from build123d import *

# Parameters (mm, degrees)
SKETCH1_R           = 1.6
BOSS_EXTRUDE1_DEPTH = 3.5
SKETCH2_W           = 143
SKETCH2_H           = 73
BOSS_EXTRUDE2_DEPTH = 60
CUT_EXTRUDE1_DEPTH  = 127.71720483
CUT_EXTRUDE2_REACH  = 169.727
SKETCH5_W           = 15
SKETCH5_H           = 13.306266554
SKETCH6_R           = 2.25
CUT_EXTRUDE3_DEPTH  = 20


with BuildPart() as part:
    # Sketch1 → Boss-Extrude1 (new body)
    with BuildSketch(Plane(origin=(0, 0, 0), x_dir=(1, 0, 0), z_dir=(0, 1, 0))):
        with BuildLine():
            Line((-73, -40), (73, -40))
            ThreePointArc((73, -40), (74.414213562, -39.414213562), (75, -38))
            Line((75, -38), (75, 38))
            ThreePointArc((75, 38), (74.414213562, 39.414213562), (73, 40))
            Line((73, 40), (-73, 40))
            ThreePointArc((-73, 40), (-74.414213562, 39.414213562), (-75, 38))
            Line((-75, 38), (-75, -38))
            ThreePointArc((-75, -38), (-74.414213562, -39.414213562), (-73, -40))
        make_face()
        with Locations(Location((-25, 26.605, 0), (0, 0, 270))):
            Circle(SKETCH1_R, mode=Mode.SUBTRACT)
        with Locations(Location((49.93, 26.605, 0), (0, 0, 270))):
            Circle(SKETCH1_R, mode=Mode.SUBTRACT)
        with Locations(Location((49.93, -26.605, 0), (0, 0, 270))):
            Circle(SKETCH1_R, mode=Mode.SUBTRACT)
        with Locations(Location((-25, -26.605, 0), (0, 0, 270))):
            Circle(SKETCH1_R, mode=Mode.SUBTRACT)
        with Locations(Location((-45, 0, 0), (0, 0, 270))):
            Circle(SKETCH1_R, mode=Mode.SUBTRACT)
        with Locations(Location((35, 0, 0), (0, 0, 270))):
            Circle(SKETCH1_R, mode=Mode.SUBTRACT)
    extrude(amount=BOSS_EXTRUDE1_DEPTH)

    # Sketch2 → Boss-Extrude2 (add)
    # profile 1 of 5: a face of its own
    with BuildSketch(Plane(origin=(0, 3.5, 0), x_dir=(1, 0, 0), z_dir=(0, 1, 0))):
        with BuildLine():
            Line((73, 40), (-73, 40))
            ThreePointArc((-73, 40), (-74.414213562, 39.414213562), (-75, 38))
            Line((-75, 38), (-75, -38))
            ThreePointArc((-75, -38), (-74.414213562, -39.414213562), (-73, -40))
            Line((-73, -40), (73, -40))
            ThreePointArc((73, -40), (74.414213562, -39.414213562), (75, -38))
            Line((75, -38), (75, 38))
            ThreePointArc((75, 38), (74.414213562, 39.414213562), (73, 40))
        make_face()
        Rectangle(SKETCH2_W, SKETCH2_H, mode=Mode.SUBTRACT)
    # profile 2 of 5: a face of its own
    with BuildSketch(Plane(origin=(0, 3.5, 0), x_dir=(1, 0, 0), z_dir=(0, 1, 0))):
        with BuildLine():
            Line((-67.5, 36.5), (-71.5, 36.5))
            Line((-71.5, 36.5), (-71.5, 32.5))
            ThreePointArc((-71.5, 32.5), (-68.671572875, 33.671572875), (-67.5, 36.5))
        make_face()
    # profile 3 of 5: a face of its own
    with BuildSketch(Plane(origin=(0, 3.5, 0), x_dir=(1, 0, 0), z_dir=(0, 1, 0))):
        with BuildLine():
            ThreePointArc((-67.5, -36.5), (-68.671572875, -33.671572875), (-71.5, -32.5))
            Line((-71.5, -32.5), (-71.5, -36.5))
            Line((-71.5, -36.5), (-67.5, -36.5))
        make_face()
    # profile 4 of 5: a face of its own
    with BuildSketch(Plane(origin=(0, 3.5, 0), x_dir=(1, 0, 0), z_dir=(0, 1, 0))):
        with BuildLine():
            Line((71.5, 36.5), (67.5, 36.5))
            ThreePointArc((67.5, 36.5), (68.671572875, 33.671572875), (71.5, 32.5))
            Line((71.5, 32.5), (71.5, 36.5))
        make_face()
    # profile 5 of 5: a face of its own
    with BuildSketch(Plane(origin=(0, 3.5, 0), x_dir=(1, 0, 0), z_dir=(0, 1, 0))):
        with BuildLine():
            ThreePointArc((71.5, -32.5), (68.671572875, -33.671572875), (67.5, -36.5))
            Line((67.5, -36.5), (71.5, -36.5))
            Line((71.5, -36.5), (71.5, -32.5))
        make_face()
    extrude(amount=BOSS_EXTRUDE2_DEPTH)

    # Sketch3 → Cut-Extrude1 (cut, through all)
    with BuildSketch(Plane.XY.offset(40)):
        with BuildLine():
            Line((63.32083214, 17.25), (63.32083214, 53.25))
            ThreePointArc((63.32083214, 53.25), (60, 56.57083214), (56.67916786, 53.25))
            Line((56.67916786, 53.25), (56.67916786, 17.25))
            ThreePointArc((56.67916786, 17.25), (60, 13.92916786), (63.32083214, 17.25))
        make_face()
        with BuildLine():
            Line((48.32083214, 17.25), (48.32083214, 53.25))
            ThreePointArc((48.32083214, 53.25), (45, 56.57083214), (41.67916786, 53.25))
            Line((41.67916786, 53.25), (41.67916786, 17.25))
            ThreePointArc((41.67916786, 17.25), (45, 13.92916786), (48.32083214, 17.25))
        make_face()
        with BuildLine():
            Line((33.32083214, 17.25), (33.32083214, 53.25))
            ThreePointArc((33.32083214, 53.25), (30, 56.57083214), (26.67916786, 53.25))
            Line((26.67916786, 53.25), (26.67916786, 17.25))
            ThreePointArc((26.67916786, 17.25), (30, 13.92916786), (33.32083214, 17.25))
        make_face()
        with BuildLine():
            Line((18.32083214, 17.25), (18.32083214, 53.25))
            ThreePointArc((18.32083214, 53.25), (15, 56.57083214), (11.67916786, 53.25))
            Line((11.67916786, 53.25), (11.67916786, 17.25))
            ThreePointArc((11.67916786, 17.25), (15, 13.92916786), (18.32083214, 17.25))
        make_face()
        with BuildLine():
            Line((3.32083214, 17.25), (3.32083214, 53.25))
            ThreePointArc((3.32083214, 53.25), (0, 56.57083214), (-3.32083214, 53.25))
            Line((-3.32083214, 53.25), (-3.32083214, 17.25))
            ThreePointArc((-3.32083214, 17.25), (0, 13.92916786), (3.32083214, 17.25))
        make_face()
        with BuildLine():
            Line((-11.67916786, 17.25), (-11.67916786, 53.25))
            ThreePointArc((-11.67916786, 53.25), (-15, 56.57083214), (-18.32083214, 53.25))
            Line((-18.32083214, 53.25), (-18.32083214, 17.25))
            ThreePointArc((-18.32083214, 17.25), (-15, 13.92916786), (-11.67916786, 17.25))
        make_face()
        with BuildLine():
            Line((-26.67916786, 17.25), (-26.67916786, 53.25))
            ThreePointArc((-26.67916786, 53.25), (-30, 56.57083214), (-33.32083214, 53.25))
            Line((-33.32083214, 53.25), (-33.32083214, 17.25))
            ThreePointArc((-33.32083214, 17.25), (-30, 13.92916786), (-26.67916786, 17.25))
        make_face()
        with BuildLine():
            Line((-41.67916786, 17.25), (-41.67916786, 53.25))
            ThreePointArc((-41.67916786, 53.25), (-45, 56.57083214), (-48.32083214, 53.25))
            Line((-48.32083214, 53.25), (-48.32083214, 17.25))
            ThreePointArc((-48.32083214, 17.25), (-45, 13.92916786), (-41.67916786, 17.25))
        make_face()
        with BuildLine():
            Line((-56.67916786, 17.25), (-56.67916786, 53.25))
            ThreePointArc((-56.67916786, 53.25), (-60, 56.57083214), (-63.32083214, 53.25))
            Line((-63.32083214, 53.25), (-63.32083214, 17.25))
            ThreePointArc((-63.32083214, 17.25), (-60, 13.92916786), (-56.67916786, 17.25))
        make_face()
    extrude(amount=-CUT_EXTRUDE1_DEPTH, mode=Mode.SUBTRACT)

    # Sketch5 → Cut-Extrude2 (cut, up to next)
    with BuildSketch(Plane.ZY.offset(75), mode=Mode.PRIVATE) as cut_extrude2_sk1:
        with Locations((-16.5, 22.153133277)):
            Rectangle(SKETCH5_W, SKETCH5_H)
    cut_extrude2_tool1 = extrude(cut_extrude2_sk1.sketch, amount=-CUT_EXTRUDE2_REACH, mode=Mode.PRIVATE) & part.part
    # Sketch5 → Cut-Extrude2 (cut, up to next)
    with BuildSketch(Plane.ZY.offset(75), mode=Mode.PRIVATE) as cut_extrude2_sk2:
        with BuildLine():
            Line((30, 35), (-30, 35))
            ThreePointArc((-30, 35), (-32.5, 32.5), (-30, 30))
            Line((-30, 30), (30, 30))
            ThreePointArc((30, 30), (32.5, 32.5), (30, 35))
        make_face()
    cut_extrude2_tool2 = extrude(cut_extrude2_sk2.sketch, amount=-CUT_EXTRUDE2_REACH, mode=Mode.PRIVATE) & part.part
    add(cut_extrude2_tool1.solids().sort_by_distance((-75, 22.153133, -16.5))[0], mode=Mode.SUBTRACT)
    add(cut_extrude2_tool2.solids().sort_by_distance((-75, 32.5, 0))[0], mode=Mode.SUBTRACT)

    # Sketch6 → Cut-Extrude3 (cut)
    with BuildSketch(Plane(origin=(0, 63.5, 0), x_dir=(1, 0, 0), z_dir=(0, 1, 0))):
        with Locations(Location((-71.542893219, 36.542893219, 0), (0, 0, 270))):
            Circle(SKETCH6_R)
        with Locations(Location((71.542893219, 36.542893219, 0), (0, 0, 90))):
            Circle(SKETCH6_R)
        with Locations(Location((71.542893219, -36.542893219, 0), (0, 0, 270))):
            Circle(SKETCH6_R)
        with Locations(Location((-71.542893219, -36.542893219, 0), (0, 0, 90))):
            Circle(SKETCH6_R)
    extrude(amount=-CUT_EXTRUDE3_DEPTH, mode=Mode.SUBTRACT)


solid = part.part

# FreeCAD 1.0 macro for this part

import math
import FreeCAD as App
import Part
import Sketcher


def add_polygon(sketch, points):
    """Adds a closed chain of lines whose ends are joined by coincident constraints."""
    first, n = sketch.GeometryCount, len(points)
    for a, b in zip(points, points[1:] + points[:1]):
        sketch.addGeometry(Part.LineSegment(App.Vector(*a, 0), App.Vector(*b, 0)), False)
    for i in range(n):
        sketch.addConstraint(Sketcher.Constraint("Coincident", first + i, 2, first + (i + 1) % n, 1))

doc = App.newDocument("Part")
body = doc.addObject("PartDesign::Body", "Body")

# Sketch on XZ plane
sketch1 = body.newObject("Sketcher::SketchObject", "Sketch")
sketch1.AttachmentSupport = (doc.getObject("XZ_Plane"), [""])
sketch1.MapMode = "FlatFace"
sketch1.addGeometry(Part.LineSegment(App.Vector(-73, 40, 0), App.Vector(73, 40, 0)), False)
sketch1.addGeometry(Part.ArcOfCircle(Part.Circle(App.Vector(73, 38, 0), App.Vector(0, 0, 1), 2), math.radians(0), math.radians(90)), False)
sketch1.addGeometry(Part.LineSegment(App.Vector(75, 38, 0), App.Vector(75, -38, 0)), False)
sketch1.addGeometry(Part.ArcOfCircle(Part.Circle(App.Vector(73, -38, 0), App.Vector(0, 0, 1), 2), math.radians(-90), math.radians(0)), False)
sketch1.addGeometry(Part.LineSegment(App.Vector(73, -40, 0), App.Vector(-73, -40, 0)), False)
sketch1.addGeometry(Part.ArcOfCircle(Part.Circle(App.Vector(-73, -38, 0), App.Vector(0, 0, 1), 2), math.radians(-180), math.radians(-90)), False)
sketch1.addGeometry(Part.LineSegment(App.Vector(-75, -38, 0), App.Vector(-75, 38, 0)), False)
sketch1.addGeometry(Part.ArcOfCircle(Part.Circle(App.Vector(-73, 38, 0), App.Vector(0, 0, 1), 2), math.radians(90), math.radians(180)), False)
sketch1.addGeometry(Part.Circle(App.Vector(-25, 26.6, 0), App.Vector(0, 0, 1), 1.6), False)
sketch1.addGeometry(Part.Circle(App.Vector(49.9, 26.6, 0), App.Vector(0, 0, 1), 1.6), False)
sketch1.addGeometry(Part.Circle(App.Vector(-45, 0, 0), App.Vector(0, 0, 1), 1.6), False)
sketch1.addGeometry(Part.Circle(App.Vector(-25, -26.6, 0), App.Vector(0, 0, 1), 1.6), False)
sketch1.addGeometry(Part.Circle(App.Vector(35, 0, 0), App.Vector(0, 0, 1), 1.6), False)
sketch1.addGeometry(Part.Circle(App.Vector(49.9, -26.6, 0), App.Vector(0, 0, 1), 1.6), False)
sketch1.addConstraint(Sketcher.Constraint("Tangent", 0, 2, 1, 2))
sketch1.addConstraint(Sketcher.Constraint("Tangent", 1, 1, 2, 1))
sketch1.addConstraint(Sketcher.Constraint("Tangent", 2, 2, 3, 2))
sketch1.addConstraint(Sketcher.Constraint("Tangent", 3, 1, 4, 1))
sketch1.addConstraint(Sketcher.Constraint("Tangent", 4, 2, 5, 2))
sketch1.addConstraint(Sketcher.Constraint("Tangent", 5, 1, 6, 1))
sketch1.addConstraint(Sketcher.Constraint("Tangent", 6, 2, 7, 2))
sketch1.addConstraint(Sketcher.Constraint("Tangent", 7, 1, 0, 1))
sketch1.addConstraint(Sketcher.Constraint("Horizontal", 0))
sketch1.addConstraint(Sketcher.Constraint("Vertical", 2))
sketch1.addConstraint(Sketcher.Constraint("Horizontal", 4))
sketch1.addConstraint(Sketcher.Constraint("Vertical", 6))
sketch1.addConstraint(Sketcher.Constraint("Equal", 1, 3))
sketch1.addConstraint(Sketcher.Constraint("Equal", 3, 5))
sketch1.addConstraint(Sketcher.Constraint("Equal", 5, 7))
sketch1.addConstraint(Sketcher.Constraint("Equal", 8, 9))
sketch1.addConstraint(Sketcher.Constraint("Equal", 9, 10))
sketch1.addConstraint(Sketcher.Constraint("Equal", 10, 11))
sketch1.addConstraint(Sketcher.Constraint("Equal", 11, 12))
sketch1.addConstraint(Sketcher.Constraint("Equal", 12, 13))
sketch1.addConstraint(Sketcher.Constraint("Symmetric", 1, 3, 5, 3, -1, 1))
sketch1.addConstraint(Sketcher.Constraint("Symmetric", 8, 3, 11, 3, -1))
sketch1.addConstraint(Sketcher.Constraint("Symmetric", 9, 3, 13, 3, -1))
sketch1.addConstraint(Sketcher.Constraint("PointOnObject", 10, 3, -1))
sketch1.addConstraint(Sketcher.Constraint("PointOnObject", 12, 3, -1))
sketch1.addConstraint(Sketcher.Constraint("Horizontal", 8, 3, 9, 3))
sketch1.addConstraint(Sketcher.Constraint("Radius", 1, 2.0))
sketch1.addConstraint(Sketcher.Constraint("Diameter", 8, 3.2))
sketch1.addConstraint(Sketcher.Constraint("DistanceX", 0, 1, 0, 2, 146.0))
sketch1.addConstraint(Sketcher.Constraint("DistanceY", 2, 2, 2, 1, 76.0))
sketch1.addConstraint(Sketcher.Constraint("DistanceX", 8, 3, -1, 1, 25.0))
sketch1.addConstraint(Sketcher.Constraint("DistanceX", 10, 3, -1, 1, 45.0))
sketch1.addConstraint(Sketcher.Constraint("DistanceX", -1, 1, 12, 3, 35.0))
sketch1.addConstraint(Sketcher.Constraint("DistanceX", -1, 1, 9, 3, 49.93))
sketch1.addConstraint(Sketcher.Constraint("DistanceY", 11, 3, 8, 3, 53.21))
pad1 = body.newObject("PartDesign::Pad", "Pad")
pad1.Profile = sketch1
pad1.Length = 3.5
pad1.Reversed = True

# Sketch on XZ plane
sketch2 = body.newObject("Sketcher::SketchObject", "Sketch001")
sketch2.AttachmentSupport = (doc.getObject("XZ_Plane"), [""])
sketch2.MapMode = "FlatFace"
sketch2.AttachmentOffset = App.Placement(App.Vector(0, 0, -3.5), App.Rotation())
sketch2.addGeometry(Part.LineSegment(App.Vector(73, -40, 0), App.Vector(-73, -40, 0)), False)
sketch2.addGeometry(Part.ArcOfCircle(Part.Circle(App.Vector(-73, -38, 0), App.Vector(0, 0, 1), 2), math.radians(-180), math.radians(-90)), False)
sketch2.addGeometry(Part.LineSegment(App.Vector(-75, -38, 0), App.Vector(-75, 38, 0)), False)
sketch2.addGeometry(Part.ArcOfCircle(Part.Circle(App.Vector(-73, 38, 0), App.Vector(0, 0, 1), 2), math.radians(90), math.radians(180)), False)
sketch2.addGeometry(Part.LineSegment(App.Vector(-73, 40, 0), App.Vector(73, 40, 0)), False)
sketch2.addGeometry(Part.ArcOfCircle(Part.Circle(App.Vector(73, 38, 0), App.Vector(0, 0, 1), 2), math.radians(0), math.radians(90)), False)
sketch2.addGeometry(Part.LineSegment(App.Vector(75, 38, 0), App.Vector(75, -38, 0)), False)
sketch2.addGeometry(Part.ArcOfCircle(Part.Circle(App.Vector(73, -38, 0), App.Vector(0, 0, 1), 2), math.radians(-90), math.radians(0)), False)
sketch2.addGeometry(Part.LineSegment(App.Vector(67.5, 36.5, 0), App.Vector(-67.5, 36.5, 0)), False)
sketch2.addGeometry(Part.ArcOfCircle(Part.Circle(App.Vector(-71.5, 36.5, 0), App.Vector(0, 0, 1), 4), math.radians(-90), math.radians(0)), False)
sketch2.addGeometry(Part.LineSegment(App.Vector(-71.5, 32.5, 0), App.Vector(-71.5, -32.5, 0)), False)
sketch2.addGeometry(Part.ArcOfCircle(Part.Circle(App.Vector(-71.5, -36.5, 0), App.Vector(0, 0, 1), 4), math.radians(0), math.radians(90)), False)
sketch2.addGeometry(Part.LineSegment(App.Vector(-67.5, -36.5, 0), App.Vector(67.5, -36.5, 0)), False)
sketch2.addGeometry(Part.ArcOfCircle(Part.Circle(App.Vector(71.5, -36.5, 0), App.Vector(0, 0, 1), 4), math.radians(90), math.radians(180)), False)
sketch2.addGeometry(Part.LineSegment(App.Vector(71.5, -32.5, 0), App.Vector(71.5, 32.5, 0)), False)
sketch2.addGeometry(Part.ArcOfCircle(Part.Circle(App.Vector(71.5, 36.5, 0), App.Vector(0, 0, 1), 4), math.radians(180), math.radians(270)), False)
sketch2.addConstraint(Sketcher.Constraint("Tangent", 0, 2, 1, 2))
sketch2.addConstraint(Sketcher.Constraint("Tangent", 1, 1, 2, 1))
sketch2.addConstraint(Sketcher.Constraint("Tangent", 2, 2, 3, 2))
sketch2.addConstraint(Sketcher.Constraint("Tangent", 3, 1, 4, 1))
sketch2.addConstraint(Sketcher.Constraint("Tangent", 4, 2, 5, 2))
sketch2.addConstraint(Sketcher.Constraint("Tangent", 5, 1, 6, 1))
sketch2.addConstraint(Sketcher.Constraint("Tangent", 6, 2, 7, 2))
sketch2.addConstraint(Sketcher.Constraint("Tangent", 7, 1, 0, 1))
sketch2.addConstraint(Sketcher.Constraint("Coincident", 8, 2, 9, 2))
sketch2.addConstraint(Sketcher.Constraint("Coincident", 9, 1, 10, 1))
sketch2.addConstraint(Sketcher.Constraint("Coincident", 10, 2, 11, 2))
sketch2.addConstraint(Sketcher.Constraint("Coincident", 11, 1, 12, 1))
sketch2.addConstraint(Sketcher.Constraint("Coincident", 12, 2, 13, 2))
sketch2.addConstraint(Sketcher.Constraint("Coincident", 13, 1, 14, 1))
sketch2.addConstraint(Sketcher.Constraint("Coincident", 14, 2, 15, 2))
sketch2.addConstraint(Sketcher.Constraint("Coincident", 15, 1, 8, 1))
sketch2.addConstraint(Sketcher.Constraint("Horizontal", 0))
sketch2.addConstraint(Sketcher.Constraint("Vertical", 2))
sketch2.addConstraint(Sketcher.Constraint("Horizontal", 4))
sketch2.addConstraint(Sketcher.Constraint("Vertical", 6))
sketch2.addConstraint(Sketcher.Constraint("Horizontal", 8))
sketch2.addConstraint(Sketcher.Constraint("Vertical", 10))
sketch2.addConstraint(Sketcher.Constraint("Horizontal", 12))
sketch2.addConstraint(Sketcher.Constraint("Vertical", 14))
sketch2.addConstraint(Sketcher.Constraint("Equal", 1, 3))
sketch2.addConstraint(Sketcher.Constraint("Equal", 3, 5))
sketch2.addConstraint(Sketcher.Constraint("Equal", 5, 7))
sketch2.addConstraint(Sketcher.Constraint("Equal", 9, 11))
sketch2.addConstraint(Sketcher.Constraint("Equal", 11, 13))
sketch2.addConstraint(Sketcher.Constraint("Equal", 13, 15))
sketch2.addConstraint(Sketcher.Constraint("Symmetric", 1, 3, 5, 3, -1, 1))
sketch2.addConstraint(Sketcher.Constraint("Symmetric", 9, 3, 13, 3, -1, 1))
sketch2.addConstraint(Sketcher.Constraint("Symmetric", 11, 3, 15, 3, -1, 1))
sketch2.addConstraint(Sketcher.Constraint("Symmetric", 11, 3, 13, 3, -2))
sketch2.addConstraint(Sketcher.Constraint("Horizontal", 15, 3, 8, 2))
sketch2.addConstraint(Sketcher.Constraint("Horizontal", 13, 3, 11, 1))
sketch2.addConstraint(Sketcher.Constraint("Vertical", 11, 3, 9, 1))
sketch2.addConstraint(Sketcher.Constraint("Vertical", 15, 3, 13, 1))
sketch2.addConstraint(Sketcher.Constraint("Radius", 1, 2.0))
sketch2.addConstraint(Sketcher.Constraint("Radius", 9, 4.0))
sketch2.addConstraint(Sketcher.Constraint("DistanceX", 0, 2, 0, 1, 146.0))
sketch2.addConstraint(Sketcher.Constraint("DistanceX", 8, 2, 8, 1, 135.0))
sketch2.addConstraint(Sketcher.Constraint("DistanceY", 2, 1, 2, 2, 76.0))
sketch2.addConstraint(Sketcher.Constraint("DistanceY", 10, 2, 10, 1, 65.0))
pad2 = body.newObject("PartDesign::Pad", "Pad001")
pad2.Profile = sketch2
pad2.Length = 60
pad2.Reversed = True

# Sketch on XY plane
sketch3 = body.newObject("Sketcher::SketchObject", "Sketch002")
sketch3.AttachmentSupport = (doc.getObject("XY_Plane"), [""])
sketch3.MapMode = "FlatFace"
sketch3.AttachmentOffset = App.Placement(App.Vector(0, 0, 40), App.Rotation())
sketch3.addGeometry(Part.LineSegment(App.Vector(63.3, 17.2, 0), App.Vector(63.3, 53.2, 0)), False)
sketch3.addGeometry(Part.ArcOfCircle(Part.Circle(App.Vector(60, 53.2, 0), App.Vector(0, 0, 1), 3.3), math.radians(0), math.radians(180)), False)
sketch3.addGeometry(Part.LineSegment(App.Vector(56.7, 53.2, 0), App.Vector(56.7, 17.2, 0)), False)
sketch3.addGeometry(Part.ArcOfCircle(Part.Circle(App.Vector(60, 17.2, 0), App.Vector(0, 0, 1), 3.3), math.radians(180), math.radians(360)), False)
sketch3.addGeometry(Part.LineSegment(App.Vector(48.3, 17.2, 0), App.Vector(48.3, 53.2, 0)), False)
sketch3.addGeometry(Part.ArcOfCircle(Part.Circle(App.Vector(45, 53.2, 0), App.Vector(0, 0, 1), 3.3), math.radians(0), math.radians(180)), False)
sketch3.addGeometry(Part.LineSegment(App.Vector(41.7, 53.2, 0), App.Vector(41.7, 17.2, 0)), False)
sketch3.addGeometry(Part.ArcOfCircle(Part.Circle(App.Vector(45, 17.2, 0), App.Vector(0, 0, 1), 3.3), math.radians(180), math.radians(360)), False)
sketch3.addGeometry(Part.LineSegment(App.Vector(33.3, 17.2, 0), App.Vector(33.3, 53.2, 0)), False)
sketch3.addGeometry(Part.ArcOfCircle(Part.Circle(App.Vector(30, 53.2, 0), App.Vector(0, 0, 1), 3.3), math.radians(0), math.radians(180)), False)
sketch3.addGeometry(Part.LineSegment(App.Vector(26.7, 53.2, 0), App.Vector(26.7, 17.2, 0)), False)
sketch3.addGeometry(Part.ArcOfCircle(Part.Circle(App.Vector(30, 17.2, 0), App.Vector(0, 0, 1), 3.3), math.radians(180), math.radians(360)), False)
sketch3.addGeometry(Part.LineSegment(App.Vector(18.3, 17.2, 0), App.Vector(18.3, 53.2, 0)), False)
sketch3.addGeometry(Part.ArcOfCircle(Part.Circle(App.Vector(15, 53.2, 0), App.Vector(0, 0, 1), 3.3), math.radians(0), math.radians(180)), False)
sketch3.addGeometry(Part.LineSegment(App.Vector(11.7, 53.2, 0), App.Vector(11.7, 17.2, 0)), False)
sketch3.addGeometry(Part.ArcOfCircle(Part.Circle(App.Vector(15, 17.2, 0), App.Vector(0, 0, 1), 3.3), math.radians(180), math.radians(360)), False)
sketch3.addGeometry(Part.LineSegment(App.Vector(3.3, 17.2, 0), App.Vector(3.3, 53.2, 0)), False)
sketch3.addGeometry(Part.ArcOfCircle(Part.Circle(App.Vector(0, 53.2, 0), App.Vector(0, 0, 1), 3.3), math.radians(0), math.radians(180)), False)
sketch3.addGeometry(Part.LineSegment(App.Vector(-3.3, 53.2, 0), App.Vector(-3.3, 17.2, 0)), False)
sketch3.addGeometry(Part.ArcOfCircle(Part.Circle(App.Vector(0, 17.2, 0), App.Vector(0, 0, 1), 3.3), math.radians(180), math.radians(360)), False)
sketch3.addGeometry(Part.LineSegment(App.Vector(-11.7, 17.2, 0), App.Vector(-11.7, 53.2, 0)), False)
sketch3.addGeometry(Part.ArcOfCircle(Part.Circle(App.Vector(-15, 53.2, 0), App.Vector(0, 0, 1), 3.3), math.radians(0), math.radians(180)), False)
sketch3.addGeometry(Part.LineSegment(App.Vector(-18.3, 53.2, 0), App.Vector(-18.3, 17.2, 0)), False)
sketch3.addGeometry(Part.ArcOfCircle(Part.Circle(App.Vector(-15, 17.2, 0), App.Vector(0, 0, 1), 3.3), math.radians(180), math.radians(360)), False)
sketch3.addGeometry(Part.LineSegment(App.Vector(-26.7, 17.2, 0), App.Vector(-26.7, 53.2, 0)), False)
sketch3.addGeometry(Part.ArcOfCircle(Part.Circle(App.Vector(-30, 53.2, 0), App.Vector(0, 0, 1), 3.3), math.radians(0), math.radians(180)), False)
sketch3.addGeometry(Part.LineSegment(App.Vector(-33.3, 53.2, 0), App.Vector(-33.3, 17.2, 0)), False)
sketch3.addGeometry(Part.ArcOfCircle(Part.Circle(App.Vector(-30, 17.2, 0), App.Vector(0, 0, 1), 3.3), math.radians(180), math.radians(360)), False)
sketch3.addGeometry(Part.LineSegment(App.Vector(-41.7, 17.2, 0), App.Vector(-41.7, 53.2, 0)), False)
sketch3.addGeometry(Part.ArcOfCircle(Part.Circle(App.Vector(-45, 53.2, 0), App.Vector(0, 0, 1), 3.3), math.radians(0), math.radians(180)), False)
sketch3.addGeometry(Part.LineSegment(App.Vector(-48.3, 53.2, 0), App.Vector(-48.3, 17.2, 0)), False)
sketch3.addGeometry(Part.ArcOfCircle(Part.Circle(App.Vector(-45, 17.2, 0), App.Vector(0, 0, 1), 3.3), math.radians(180), math.radians(360)), False)
sketch3.addGeometry(Part.LineSegment(App.Vector(-56.7, 17.2, 0), App.Vector(-56.7, 53.2, 0)), False)
sketch3.addGeometry(Part.ArcOfCircle(Part.Circle(App.Vector(-60, 53.2, 0), App.Vector(0, 0, 1), 3.3), math.radians(0), math.radians(180)), False)
sketch3.addGeometry(Part.LineSegment(App.Vector(-63.3, 53.2, 0), App.Vector(-63.3, 17.2, 0)), False)
sketch3.addGeometry(Part.ArcOfCircle(Part.Circle(App.Vector(-60, 17.2, 0), App.Vector(0, 0, 1), 3.3), math.radians(180), math.radians(360)), False)
sketch3.addConstraint(Sketcher.Constraint("Tangent", 0, 2, 1, 1))
sketch3.addConstraint(Sketcher.Constraint("Tangent", 1, 2, 2, 1))
sketch3.addConstraint(Sketcher.Constraint("Tangent", 2, 2, 3, 1))
sketch3.addConstraint(Sketcher.Constraint("Tangent", 3, 2, 0, 1))
sketch3.addConstraint(Sketcher.Constraint("Tangent", 4, 2, 5, 1))
sketch3.addConstraint(Sketcher.Constraint("Tangent", 5, 2, 6, 1))
sketch3.addConstraint(Sketcher.Constraint("Tangent", 6, 2, 7, 1))
sketch3.addConstraint(Sketcher.Constraint("Tangent", 7, 2, 4, 1))
sketch3.addConstraint(Sketcher.Constraint("Tangent", 8, 2, 9, 1))
sketch3.addConstraint(Sketcher.Constraint("Tangent", 9, 2, 10, 1))
sketch3.addConstraint(Sketcher.Constraint("Tangent", 10, 2, 11, 1))
sketch3.addConstraint(Sketcher.Constraint("Tangent", 11, 2, 8, 1))
sketch3.addConstraint(Sketcher.Constraint("Tangent", 12, 2, 13, 1))
sketch3.addConstraint(Sketcher.Constraint("Tangent", 13, 2, 14, 1))
sketch3.addConstraint(Sketcher.Constraint("Tangent", 14, 2, 15, 1))
sketch3.addConstraint(Sketcher.Constraint("Tangent", 15, 2, 12, 1))
sketch3.addConstraint(Sketcher.Constraint("Tangent", 16, 2, 17, 1))
sketch3.addConstraint(Sketcher.Constraint("Tangent", 17, 2, 18, 1))
sketch3.addConstraint(Sketcher.Constraint("Tangent", 18, 2, 19, 1))
sketch3.addConstraint(Sketcher.Constraint("Tangent", 19, 2, 16, 1))
sketch3.addConstraint(Sketcher.Constraint("Tangent", 20, 2, 21, 1))
sketch3.addConstraint(Sketcher.Constraint("Tangent", 21, 2, 22, 1))
sketch3.addConstraint(Sketcher.Constraint("Tangent", 22, 2, 23, 1))
sketch3.addConstraint(Sketcher.Constraint("Tangent", 23, 2, 20, 1))
sketch3.addConstraint(Sketcher.Constraint("Tangent", 24, 2, 25, 1))
sketch3.addConstraint(Sketcher.Constraint("Tangent", 25, 2, 26, 1))
sketch3.addConstraint(Sketcher.Constraint("Tangent", 26, 2, 27, 1))
sketch3.addConstraint(Sketcher.Constraint("Tangent", 27, 2, 24, 1))
sketch3.addConstraint(Sketcher.Constraint("Tangent", 28, 2, 29, 1))
sketch3.addConstraint(Sketcher.Constraint("Tangent", 29, 2, 30, 1))
sketch3.addConstraint(Sketcher.Constraint("Tangent", 30, 2, 31, 1))
sketch3.addConstraint(Sketcher.Constraint("Tangent", 31, 2, 28, 1))
sketch3.addConstraint(Sketcher.Constraint("Tangent", 32, 2, 33, 1))
sketch3.addConstraint(Sketcher.Constraint("Tangent", 33, 2, 34, 1))
sketch3.addConstraint(Sketcher.Constraint("Tangent", 34, 2, 35, 1))
sketch3.addConstraint(Sketcher.Constraint("Tangent", 35, 2, 32, 1))
sketch3.addConstraint(Sketcher.Constraint("Vertical", 0))
sketch3.addConstraint(Sketcher.Constraint("Vertical", 2))
sketch3.addConstraint(Sketcher.Constraint("Vertical", 4))
sketch3.addConstraint(Sketcher.Constraint("Vertical", 6))
sketch3.addConstraint(Sketcher.Constraint("Vertical", 8))
sketch3.addConstraint(Sketcher.Constraint("Vertical", 10))
sketch3.addConstraint(Sketcher.Constraint("Vertical", 12))
sketch3.addConstraint(Sketcher.Constraint("Vertical", 14))
sketch3.addConstraint(Sketcher.Constraint("Vertical", 16))
sketch3.addConstraint(Sketcher.Constraint("Vertical", 18))
sketch3.addConstraint(Sketcher.Constraint("Vertical", 20))
sketch3.addConstraint(Sketcher.Constraint("Vertical", 22))
sketch3.addConstraint(Sketcher.Constraint("Vertical", 24))
sketch3.addConstraint(Sketcher.Constraint("Vertical", 26))
sketch3.addConstraint(Sketcher.Constraint("Vertical", 28))
sketch3.addConstraint(Sketcher.Constraint("Vertical", 30))
sketch3.addConstraint(Sketcher.Constraint("Vertical", 32))
sketch3.addConstraint(Sketcher.Constraint("Vertical", 34))
sketch3.addConstraint(Sketcher.Constraint("Equal", 3, 5))
sketch3.addConstraint(Sketcher.Constraint("Equal", 7, 9))
sketch3.addConstraint(Sketcher.Constraint("Equal", 11, 13))
sketch3.addConstraint(Sketcher.Constraint("Equal", 15, 17))
sketch3.addConstraint(Sketcher.Constraint("Equal", 19, 21))
sketch3.addConstraint(Sketcher.Constraint("Equal", 23, 25))
sketch3.addConstraint(Sketcher.Constraint("Equal", 27, 29))
sketch3.addConstraint(Sketcher.Constraint("Equal", 31, 33))
sketch3.addConstraint(Sketcher.Constraint("Symmetric", 13, 3, 21, 3, -2))
sketch3.addConstraint(Sketcher.Constraint("Symmetric", 9, 3, 25, 3, -2))
sketch3.addConstraint(Sketcher.Constraint("Symmetric", 5, 3, 29, 3, -2))
sketch3.addConstraint(Sketcher.Constraint("Symmetric", 1, 3, 33, 3, -2))
sketch3.addConstraint(Sketcher.Constraint("PointOnObject", 17, 3, -2))
sketch3.addConstraint(Sketcher.Constraint("Horizontal", 1, 3, 5, 3))
sketch3.addConstraint(Sketcher.Constraint("Horizontal", 3, 3, 7, 3))
sketch3.addConstraint(Sketcher.Constraint("Horizontal", 5, 3, 9, 3))
sketch3.addConstraint(Sketcher.Constraint("Horizontal", 7, 3, 11, 3))
sketch3.addConstraint(Sketcher.Constraint("Horizontal", 9, 3, 13, 3))
sketch3.addConstraint(Sketcher.Constraint("Horizontal", 11, 3, 15, 3))
sketch3.addConstraint(Sketcher.Constraint("Horizontal", 13, 3, 17, 3))
sketch3.addConstraint(Sketcher.Constraint("Horizontal", 15, 3, 19, 3))
sketch3.addConstraint(Sketcher.Constraint("Horizontal", 19, 3, 23, 3))
sketch3.addConstraint(Sketcher.Constraint("Horizontal", 23, 3, 27, 3))
sketch3.addConstraint(Sketcher.Constraint("Horizontal", 27, 3, 31, 3))
sketch3.addConstraint(Sketcher.Constraint("Horizontal", 31, 3, 35, 3))
sketch3.addConstraint(Sketcher.Constraint("DistanceY", 0, 1, 0, 2, 36.0))
sketch3.addConstraint(Sketcher.Constraint("DistanceX", -1, 1, 1, 3, 60.0))
sketch3.addConstraint(Sketcher.Constraint("DistanceX", -1, 1, 5, 3, 45.0))
sketch3.addConstraint(Sketcher.Constraint("DistanceX", -1, 1, 9, 3, 30.0))
sketch3.addConstraint(Sketcher.Constraint("DistanceX", -1, 1, 13, 3, 15.0))
sketch3.addConstraint(Sketcher.Constraint("DistanceY", -1, 1, 1, 3, 53.25))
sketch3.addConstraint(Sketcher.Constraint("Radius", 1, 3.320832))
pocket1 = body.newObject("PartDesign::Pocket", "Pocket")
pocket1.Profile = sketch3
pocket1.Type = "ThroughAll"

# Sketch on YZ plane
sketch4 = body.newObject("Sketcher::SketchObject", "Sketch003")
sketch4.AttachmentSupport = (doc.getObject("YZ_Plane"), [""])
sketch4.MapMode = "FlatFace"
sketch4.AttachmentOffset = App.Placement(App.Vector(0, 0, -75), App.Rotation())
add_polygon(sketch4, [(29, -24), (16, -24), (16, -9), (29, -9)])  # lines 0-3
sketch4.addConstraint(Sketcher.Constraint("Horizontal", 0))
sketch4.addConstraint(Sketcher.Constraint("Vertical", 1))
sketch4.addConstraint(Sketcher.Constraint("Horizontal", 2))
sketch4.addConstraint(Sketcher.Constraint("Vertical", 3))
sketch4.addConstraint(Sketcher.Constraint("DistanceY", 1, 1, 1, 2, 15.0))
sketch4.addConstraint(Sketcher.Constraint("DistanceY", 0, 2, -1, 1, 24.0))
sketch4.addConstraint(Sketcher.Constraint("DistanceX", -1, 1, 0, 2, 15.5))
sketch4.addConstraint(Sketcher.Constraint("DistanceX", 0, 2, 0, 1, 13.306267))
pocket2 = body.newObject("PartDesign::Pocket", "Pocket001")
pocket2.Profile = sketch4
pocket2.Type = "UpToFirst"
pocket2.Reversed = True

# Sketch on YZ plane
sketch5 = body.newObject("Sketcher::SketchObject", "Sketch004")
sketch5.AttachmentSupport = (doc.getObject("YZ_Plane"), [""])
sketch5.MapMode = "FlatFace"
sketch5.AttachmentOffset = App.Placement(App.Vector(0, 0, -75), App.Rotation())
sketch5.addGeometry(Part.LineSegment(App.Vector(35, 30, 0), App.Vector(35, -30, 0)), False)
sketch5.addGeometry(Part.ArcOfCircle(Part.Circle(App.Vector(32.5, -30, 0), App.Vector(0, 0, 1), 2.5), math.radians(180), math.radians(360)), False)
sketch5.addGeometry(Part.LineSegment(App.Vector(30, -30, 0), App.Vector(30, 30, 0)), False)
sketch5.addGeometry(Part.ArcOfCircle(Part.Circle(App.Vector(32.5, 30, 0), App.Vector(0, 0, 1), 2.5), math.radians(0), math.radians(180)), False)
sketch5.addConstraint(Sketcher.Constraint("Tangent", 0, 2, 1, 2))
sketch5.addConstraint(Sketcher.Constraint("Tangent", 1, 1, 2, 1))
sketch5.addConstraint(Sketcher.Constraint("Tangent", 2, 2, 3, 2))
sketch5.addConstraint(Sketcher.Constraint("Tangent", 3, 1, 0, 1))
sketch5.addConstraint(Sketcher.Constraint("Vertical", 0))
sketch5.addConstraint(Sketcher.Constraint("Vertical", 2))
sketch5.addConstraint(Sketcher.Constraint("Radius", 1, 2.5))
sketch5.addConstraint(Sketcher.Constraint("DistanceY", 0, 2, 0, 1, 60.0))
sketch5.addConstraint(Sketcher.Constraint("DistanceY", 1, 3, -1, 1, 30.0))
sketch5.addConstraint(Sketcher.Constraint("DistanceX", -1, 1, 0, 2, 35.0))
pocket3 = body.newObject("PartDesign::Pocket", "Pocket002")
pocket3.Profile = sketch5
pocket3.Type = "UpToFirst"
pocket3.Reversed = True

# Sketch on XZ plane
sketch6 = body.newObject("Sketcher::SketchObject", "Sketch005")
sketch6.AttachmentSupport = (doc.getObject("XZ_Plane"), [""])
sketch6.MapMode = "FlatFace"
sketch6.AttachmentOffset = App.Placement(App.Vector(0, 0, -63.5), App.Rotation())
sketch6.addGeometry(Part.Circle(App.Vector(-71.5, -36.5, 0), App.Vector(0, 0, 1), 2.2), False)
sketch6.addGeometry(Part.Circle(App.Vector(71.5, -36.5, 0), App.Vector(0, 0, 1), 2.2), False)
sketch6.addGeometry(Part.Circle(App.Vector(71.5, 36.5, 0), App.Vector(0, 0, 1), 2.2), False)
sketch6.addGeometry(Part.Circle(App.Vector(-71.5, 36.5, 0), App.Vector(0, 0, 1), 2.2), False)
sketch6.addConstraint(Sketcher.Constraint("Equal", 0, 1))
sketch6.addConstraint(Sketcher.Constraint("Equal", 1, 2))
sketch6.addConstraint(Sketcher.Constraint("Equal", 2, 3))
sketch6.addConstraint(Sketcher.Constraint("Symmetric", 0, 3, 2, 3, -1, 1))
sketch6.addConstraint(Sketcher.Constraint("Symmetric", 1, 3, 3, 3, -1, 1))
sketch6.addConstraint(Sketcher.Constraint("Symmetric", 0, 3, 1, 3, -2))
sketch6.addConstraint(Sketcher.Constraint("Diameter", 0, 4.5))
sketch6.addConstraint(Sketcher.Constraint("DistanceX", 0, 3, -1, 1, 71.542893))
sketch6.addConstraint(Sketcher.Constraint("DistanceY", 0, 3, -1, 1, 36.542893))
pocket4 = body.newObject("PartDesign::Pocket", "Pocket003")
pocket4.Profile = sketch6
pocket4.Length = 20
pocket4.Reversed = True

doc.recompute()
